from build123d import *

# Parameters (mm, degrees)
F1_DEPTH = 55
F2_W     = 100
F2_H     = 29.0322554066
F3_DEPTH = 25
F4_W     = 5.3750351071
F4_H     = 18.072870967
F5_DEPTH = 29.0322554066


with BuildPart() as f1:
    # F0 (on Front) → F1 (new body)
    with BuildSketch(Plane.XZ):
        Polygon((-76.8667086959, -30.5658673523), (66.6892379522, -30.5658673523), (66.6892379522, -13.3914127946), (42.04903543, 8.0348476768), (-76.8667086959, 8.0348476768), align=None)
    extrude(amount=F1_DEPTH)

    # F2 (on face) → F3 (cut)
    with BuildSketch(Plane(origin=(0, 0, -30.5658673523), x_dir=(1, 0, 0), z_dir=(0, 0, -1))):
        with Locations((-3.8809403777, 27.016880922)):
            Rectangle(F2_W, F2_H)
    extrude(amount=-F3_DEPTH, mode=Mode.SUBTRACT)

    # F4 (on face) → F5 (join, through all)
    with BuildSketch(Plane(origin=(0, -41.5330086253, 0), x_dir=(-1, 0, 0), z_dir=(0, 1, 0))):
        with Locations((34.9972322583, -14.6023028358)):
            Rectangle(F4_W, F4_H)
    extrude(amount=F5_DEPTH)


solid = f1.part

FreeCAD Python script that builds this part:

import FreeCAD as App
import Part
import Sketcher


def add_polygon(sketch, points):
    """Adds a closed chain of lines whose ends are joined by coincident constraints."""
    first, n = sketch.GeometryCount, len(points)
    for a, b in zip(points, points[1:] + points[:1]):
        sketch.addGeometry(Part.LineSegment(App.Vector(*a, 0), App.Vector(*b, 0)), False)
    for i in range(n):
        sketch.addConstraint(Sketcher.Constraint("Coincident", first + i, 2, first + (i + 1) % n, 1))

doc = App.newDocument("Part")
body = doc.addObject("PartDesign::Body", "Body")

sketch1 = body.newObject("Sketcher::SketchObject", "Sketch")
sketch1.AttachmentSupport = (doc.getObject("XZ_Plane"), [""])
sketch1.MapMode = "FlatFace"
add_polygon(sketch1, [(-77, -31), (67, -31), (67, -13), (42, 8), (-77, 8)])
sketch1.addConstraint([
    Sketcher.Constraint("Horizontal", 0),
    Sketcher.Constraint("Vertical", 1),
    Sketcher.Constraint("Horizontal", 3),
    Sketcher.Constraint("Vertical", 4),
    Sketcher.Constraint("Distance", 2, 32.653089),
    Sketcher.Constraint("DistanceX", 0, 1, 0, 2, 143.555947),
    Sketcher.Constraint("DistanceX", 3, 2, 3, 1, 118.915744),
    Sketcher.Constraint("DistanceY", 1, 1, 1, 2, 17.174455),
    Sketcher.Constraint("DistanceX", 3, 2, -1, 1, 76.866709),
    Sketcher.Constraint("DistanceY", 0, 2, -1, 1, 30.565867),
])
pad1 = body.newObject("PartDesign::Pad", "Pad")
pad1.Profile = sketch1
pad1.Length = 55

sketch2 = body.newObject("Sketcher::SketchObject", "Sketch001")
sketch2.AttachmentSupport = (doc.getObject("XY_Plane"), [""])
sketch2.MapMode = "FlatFace"
sketch2.AttachmentOffset = App.Placement(App.Vector(0, 0, -30.565867), App.Rotation())
add_polygon(sketch2, [(-54, -42), (-54, -13), (46, -13), (46, -42)])
sketch2.addConstraint([
    Sketcher.Constraint("Vertical", 0),
    Sketcher.Constraint("Horizontal", 1),
    Sketcher.Constraint("Vertical", 2),
    Sketcher.Constraint("Horizontal", 3),
    Sketcher.Constraint("DistanceX", 1, 1, 1, 2, 100.0),
    Sketcher.Constraint("DistanceY", 0, 1, 0, 2, 29.032255),
    Sketcher.Constraint("DistanceX", 0, 2, -1, 1, 53.88094),
    Sketcher.Constraint("DistanceY", 2, 2, -1, 1, 41.533009),
])
pocket1 = body.newObject("PartDesign::Pocket", "Pocket")
pocket1.Profile = sketch2
pocket1.Length = 25
pocket1.Reversed = True

sketch3 = body.newObject("Sketcher::SketchObject", "Sketch002")
sketch3.AttachmentSupport = (doc.getObject("XZ_Plane"), [""])
sketch3.MapMode = "FlatFace"
sketch3.AttachmentOffset = App.Placement(App.Vector(0, 0, 41.533009), App.Rotation())
add_polygon(sketch3, [(-32, -6), (-32, -24), (-38, -24), (-38, -6)])
sketch3.addConstraint([
    Sketcher.Constraint("Vertical", 0),
    Sketcher.Constraint("Horizontal", 1),
    Sketcher.Constraint("Vertical", 2),
    Sketcher.Constraint("Horizontal", 3),
    Sketcher.Constraint("DistanceY", 0, 2, 0, 1, 18.072871),
    Sketcher.Constraint("DistanceX", 1, 2, 1, 1, 5.375035),
    Sketcher.Constraint("DistanceY", 0, 2, -1, 1, 23.638738),
    Sketcher.Constraint("DistanceX", 1, 2, -1, 1, 37.68475),
])
pad2 = body.newObject("PartDesign::Pad", "Pad001")
pad2.Profile = sketch3
pad2.Type = "UpToLast"
pad2.Reversed = True

doc.recompute()
